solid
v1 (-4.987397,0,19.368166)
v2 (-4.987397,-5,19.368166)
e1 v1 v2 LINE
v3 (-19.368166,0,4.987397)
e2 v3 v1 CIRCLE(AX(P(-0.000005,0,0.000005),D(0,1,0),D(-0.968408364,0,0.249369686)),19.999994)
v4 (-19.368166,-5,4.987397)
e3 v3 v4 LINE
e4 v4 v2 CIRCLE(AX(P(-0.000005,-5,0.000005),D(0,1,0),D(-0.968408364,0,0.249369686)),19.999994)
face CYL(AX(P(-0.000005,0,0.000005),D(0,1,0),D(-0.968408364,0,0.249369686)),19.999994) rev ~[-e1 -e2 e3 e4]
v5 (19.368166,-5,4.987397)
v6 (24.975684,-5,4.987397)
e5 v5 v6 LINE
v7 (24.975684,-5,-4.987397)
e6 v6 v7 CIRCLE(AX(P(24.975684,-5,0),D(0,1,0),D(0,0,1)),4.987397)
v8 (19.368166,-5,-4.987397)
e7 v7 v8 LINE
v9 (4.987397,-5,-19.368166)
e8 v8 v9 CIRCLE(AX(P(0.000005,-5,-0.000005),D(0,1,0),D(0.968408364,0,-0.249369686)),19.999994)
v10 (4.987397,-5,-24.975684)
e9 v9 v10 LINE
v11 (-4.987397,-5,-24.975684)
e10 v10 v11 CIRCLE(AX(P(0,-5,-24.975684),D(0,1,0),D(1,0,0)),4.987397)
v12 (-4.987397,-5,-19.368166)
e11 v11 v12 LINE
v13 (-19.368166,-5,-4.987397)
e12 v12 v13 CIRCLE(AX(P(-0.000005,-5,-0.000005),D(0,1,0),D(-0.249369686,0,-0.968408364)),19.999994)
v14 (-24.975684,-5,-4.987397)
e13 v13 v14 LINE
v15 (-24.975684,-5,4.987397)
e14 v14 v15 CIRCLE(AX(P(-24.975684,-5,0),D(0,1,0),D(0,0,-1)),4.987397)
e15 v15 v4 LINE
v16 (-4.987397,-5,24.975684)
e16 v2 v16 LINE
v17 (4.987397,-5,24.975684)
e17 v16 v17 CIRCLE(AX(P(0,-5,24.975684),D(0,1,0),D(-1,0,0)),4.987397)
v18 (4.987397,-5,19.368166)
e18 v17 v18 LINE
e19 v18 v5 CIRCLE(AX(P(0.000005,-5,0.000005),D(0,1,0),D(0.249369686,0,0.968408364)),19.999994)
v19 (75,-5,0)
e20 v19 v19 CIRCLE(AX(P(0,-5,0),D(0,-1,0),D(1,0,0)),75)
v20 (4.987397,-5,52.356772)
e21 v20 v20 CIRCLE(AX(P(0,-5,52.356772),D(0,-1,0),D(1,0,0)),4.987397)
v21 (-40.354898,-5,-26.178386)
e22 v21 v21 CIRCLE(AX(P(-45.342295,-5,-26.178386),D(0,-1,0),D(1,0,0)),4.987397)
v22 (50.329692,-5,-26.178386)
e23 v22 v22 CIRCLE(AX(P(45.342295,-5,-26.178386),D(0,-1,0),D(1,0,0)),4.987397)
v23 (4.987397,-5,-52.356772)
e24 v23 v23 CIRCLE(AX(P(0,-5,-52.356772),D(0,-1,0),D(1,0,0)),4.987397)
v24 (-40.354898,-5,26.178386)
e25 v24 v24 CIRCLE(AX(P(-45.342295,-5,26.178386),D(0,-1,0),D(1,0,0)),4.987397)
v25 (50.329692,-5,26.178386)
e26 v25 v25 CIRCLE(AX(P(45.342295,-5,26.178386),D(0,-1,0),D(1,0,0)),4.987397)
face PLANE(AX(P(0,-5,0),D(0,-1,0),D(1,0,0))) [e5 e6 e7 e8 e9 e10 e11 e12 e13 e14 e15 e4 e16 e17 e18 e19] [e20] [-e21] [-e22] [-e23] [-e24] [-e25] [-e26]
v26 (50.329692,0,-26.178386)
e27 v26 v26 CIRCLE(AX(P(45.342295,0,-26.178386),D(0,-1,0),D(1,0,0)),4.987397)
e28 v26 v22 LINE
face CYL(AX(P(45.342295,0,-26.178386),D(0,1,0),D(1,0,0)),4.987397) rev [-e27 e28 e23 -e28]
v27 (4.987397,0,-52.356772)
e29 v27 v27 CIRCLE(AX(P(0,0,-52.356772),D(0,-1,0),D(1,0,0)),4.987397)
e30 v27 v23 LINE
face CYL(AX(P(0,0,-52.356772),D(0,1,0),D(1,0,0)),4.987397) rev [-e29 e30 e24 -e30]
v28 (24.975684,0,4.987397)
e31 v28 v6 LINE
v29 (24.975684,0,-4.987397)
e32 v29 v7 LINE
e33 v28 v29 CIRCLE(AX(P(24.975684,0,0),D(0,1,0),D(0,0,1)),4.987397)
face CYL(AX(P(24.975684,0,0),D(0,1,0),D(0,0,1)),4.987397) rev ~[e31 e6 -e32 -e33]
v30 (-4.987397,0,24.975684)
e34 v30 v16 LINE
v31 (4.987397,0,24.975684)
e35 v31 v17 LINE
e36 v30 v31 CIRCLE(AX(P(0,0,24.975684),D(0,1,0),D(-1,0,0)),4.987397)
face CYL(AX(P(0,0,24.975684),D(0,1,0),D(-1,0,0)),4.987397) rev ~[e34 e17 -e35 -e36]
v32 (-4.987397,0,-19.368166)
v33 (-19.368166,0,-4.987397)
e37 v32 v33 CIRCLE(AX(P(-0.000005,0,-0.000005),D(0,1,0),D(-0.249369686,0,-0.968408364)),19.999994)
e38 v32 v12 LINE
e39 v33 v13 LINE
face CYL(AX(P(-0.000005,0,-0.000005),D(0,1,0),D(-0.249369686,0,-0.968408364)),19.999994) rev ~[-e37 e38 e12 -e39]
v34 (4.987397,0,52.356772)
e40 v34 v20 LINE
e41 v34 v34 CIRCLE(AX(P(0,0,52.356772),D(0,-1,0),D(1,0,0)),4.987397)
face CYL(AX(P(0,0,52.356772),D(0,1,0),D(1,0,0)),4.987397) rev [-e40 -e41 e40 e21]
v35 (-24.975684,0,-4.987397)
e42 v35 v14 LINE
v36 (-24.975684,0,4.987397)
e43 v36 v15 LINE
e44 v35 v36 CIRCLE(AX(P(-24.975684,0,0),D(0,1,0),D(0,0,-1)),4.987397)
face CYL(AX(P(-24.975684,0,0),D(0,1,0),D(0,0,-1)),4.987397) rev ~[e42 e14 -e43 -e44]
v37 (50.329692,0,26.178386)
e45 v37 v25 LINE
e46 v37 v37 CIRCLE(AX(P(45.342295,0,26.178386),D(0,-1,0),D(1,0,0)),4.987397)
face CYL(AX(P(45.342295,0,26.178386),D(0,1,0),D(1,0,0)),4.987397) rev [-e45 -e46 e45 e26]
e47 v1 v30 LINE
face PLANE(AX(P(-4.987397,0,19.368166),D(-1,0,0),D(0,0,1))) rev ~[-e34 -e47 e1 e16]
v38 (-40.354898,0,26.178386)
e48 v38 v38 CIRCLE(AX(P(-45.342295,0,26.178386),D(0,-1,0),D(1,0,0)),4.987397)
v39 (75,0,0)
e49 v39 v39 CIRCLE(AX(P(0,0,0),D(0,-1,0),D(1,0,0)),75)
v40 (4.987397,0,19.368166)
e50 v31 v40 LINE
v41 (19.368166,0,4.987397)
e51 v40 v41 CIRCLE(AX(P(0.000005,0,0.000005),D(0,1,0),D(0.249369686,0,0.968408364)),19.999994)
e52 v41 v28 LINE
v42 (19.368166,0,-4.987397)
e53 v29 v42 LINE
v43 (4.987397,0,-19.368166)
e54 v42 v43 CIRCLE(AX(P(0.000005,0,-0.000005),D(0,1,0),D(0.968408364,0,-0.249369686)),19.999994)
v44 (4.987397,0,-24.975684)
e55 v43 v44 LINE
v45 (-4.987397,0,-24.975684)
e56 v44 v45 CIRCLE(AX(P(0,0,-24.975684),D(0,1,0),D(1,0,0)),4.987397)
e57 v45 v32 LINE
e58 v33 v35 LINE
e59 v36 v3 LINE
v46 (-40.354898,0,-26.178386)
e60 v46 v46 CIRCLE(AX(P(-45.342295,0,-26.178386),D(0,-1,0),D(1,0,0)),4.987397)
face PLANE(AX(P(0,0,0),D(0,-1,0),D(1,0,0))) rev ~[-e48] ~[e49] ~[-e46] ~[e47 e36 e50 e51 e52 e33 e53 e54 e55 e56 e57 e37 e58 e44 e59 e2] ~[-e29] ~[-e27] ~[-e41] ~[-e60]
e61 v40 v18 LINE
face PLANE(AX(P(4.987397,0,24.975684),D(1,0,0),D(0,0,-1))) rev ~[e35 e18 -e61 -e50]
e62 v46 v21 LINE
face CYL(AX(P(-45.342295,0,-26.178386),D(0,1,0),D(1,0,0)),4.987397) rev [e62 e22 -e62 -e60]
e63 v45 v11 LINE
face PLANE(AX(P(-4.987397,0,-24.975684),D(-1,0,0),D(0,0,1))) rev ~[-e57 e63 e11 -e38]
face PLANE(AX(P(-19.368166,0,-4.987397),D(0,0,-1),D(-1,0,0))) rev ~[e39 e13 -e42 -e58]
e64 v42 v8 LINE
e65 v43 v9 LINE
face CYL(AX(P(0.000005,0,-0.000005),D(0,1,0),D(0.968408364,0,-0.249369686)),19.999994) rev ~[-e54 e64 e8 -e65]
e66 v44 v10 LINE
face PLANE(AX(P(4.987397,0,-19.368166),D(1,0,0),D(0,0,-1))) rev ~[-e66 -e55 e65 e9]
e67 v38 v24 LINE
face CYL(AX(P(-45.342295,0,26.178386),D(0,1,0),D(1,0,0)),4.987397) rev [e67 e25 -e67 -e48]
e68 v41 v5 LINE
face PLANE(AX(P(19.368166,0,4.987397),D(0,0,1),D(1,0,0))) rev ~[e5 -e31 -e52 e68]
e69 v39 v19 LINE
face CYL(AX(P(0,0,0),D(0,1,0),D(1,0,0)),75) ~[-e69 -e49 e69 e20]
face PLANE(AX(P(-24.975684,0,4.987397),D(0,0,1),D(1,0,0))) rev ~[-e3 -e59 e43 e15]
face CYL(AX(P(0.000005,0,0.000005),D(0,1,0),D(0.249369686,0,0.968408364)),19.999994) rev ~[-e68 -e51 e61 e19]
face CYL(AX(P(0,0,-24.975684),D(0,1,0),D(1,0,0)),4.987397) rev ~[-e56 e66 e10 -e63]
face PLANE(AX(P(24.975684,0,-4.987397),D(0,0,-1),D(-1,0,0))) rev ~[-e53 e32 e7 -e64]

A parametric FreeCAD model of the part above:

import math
import FreeCAD as App
import Part
import Sketcher
Q = App.Units.Quantity

doc = App.newDocument("Part")
body = doc.addObject("PartDesign::Body", "Body")

sketch1 = body.newObject("Sketcher::SketchObject", "Sketch")
sketch1.AttachmentSupport = (doc.getObject("XZ_Plane"), [""])
sketch1.MapMode = "FlatFace"
sketch1.addGeometry(Part.Circle(App.Vector(0, 0, 0), App.Vector(0, 0, 1), 75), False)
sketch1.addGeometry(Part.Circle(App.Vector(-45.3, -26.2, 0), App.Vector(0, 0, 1), 5), False)
sketch1.addGeometry(Part.Circle(App.Vector(0, -52.4, 0), App.Vector(0, 0, 1), 5), False)
sketch1.addGeometry(Part.Circle(App.Vector(45.3, -26.2, 0), App.Vector(0, 0, 1), 5), False)
sketch1.addGeometry(Part.Circle(App.Vector(-45.3, 26.2, 0), App.Vector(0, 0, 1), 5), False)
sketch1.addGeometry(Part.LineSegment(App.Vector(-25, 5, 0), App.Vector(-19.4, 5, 0)), False)
sketch1.addGeometry(Part.ArcOfCircle(Part.Circle(App.Vector(0, 0, 0), App.Vector(0, 0, 1), 20), math.radians(104), math.radians(166)), False)
sketch1.addGeometry(Part.LineSegment(App.Vector(-5, 19.4, 0), App.Vector(-5, 25, 0)), False)
sketch1.addGeometry(Part.ArcOfCircle(Part.Circle(App.Vector(0, 25, 0), App.Vector(0, 0, 1), 5), math.radians(0), math.radians(180)), False)
sketch1.addGeometry(Part.LineSegment(App.Vector(5, 25, 0), App.Vector(5, 19.4, 0)), False)
sketch1.addGeometry(Part.ArcOfCircle(Part.Circle(App.Vector(0, 0, 0), App.Vector(0, 0, 1), 20), math.radians(14), math.radians(76)), False)
sketch1.addGeometry(Part.LineSegment(App.Vector(19.4, 5, 0), App.Vector(25, 5, 0)), False)
sketch1.addGeometry(Part.ArcOfCircle(Part.Circle(App.Vector(25, 0, 0), App.Vector(0, 0, 1), 5), math.radians(-90), math.radians(90)), False)
sketch1.addGeometry(Part.LineSegment(App.Vector(25, -5, 0), App.Vector(19.4, -5, 0)), False)
sketch1.addGeometry(Part.ArcOfCircle(Part.Circle(App.Vector(0, 0, 0), App.Vector(0, 0, 1), 20), math.radians(-76), math.radians(-14)), False)
sketch1.addGeometry(Part.LineSegment(App.Vector(5, -19.4, 0), App.Vector(5, -25, 0)), False)
sketch1.addGeometry(Part.ArcOfCircle(Part.Circle(App.Vector(0, -25, 0), App.Vector(0, 0, 1), 5), math.radians(180), math.radians(360)), False)
sketch1.addGeometry(Part.LineSegment(App.Vector(-5, -25, 0), App.Vector(-5, -19.4, 0)), False)
sketch1.addGeometry(Part.ArcOfCircle(Part.Circle(App.Vector(0, 0, 0), App.Vector(0, 0, 1), 20), math.radians(-166), math.radians(-104)), False)
sketch1.addGeometry(Part.LineSegment(App.Vector(-19.4, -5, 0), App.Vector(-25, -5, 0)), False)
sketch1.addGeometry(Part.ArcOfCircle(Part.Circle(App.Vector(-25, 0, 0), App.Vector(0, 0, 1), 5), math.radians(90), math.radians(270)), False)
sketch1.addGeometry(Part.Circle(App.Vector(45.3, 26.2, 0), App.Vector(0, 0, 1), 5), False)
sketch1.addGeometry(Part.Circle(App.Vector(0, 52.4, 0), App.Vector(0, 0, 1), 5), False)
sketch1.addConstraint(Sketcher.Constraint("Coincident", 5, 2, 6, 2))
sketch1.addConstraint(Sketcher.Constraint("Coincident", 6, 1, 7, 1))
sketch1.addConstraint(Sketcher.Constraint("Tangent", 7, 2, 8, 2))
sketch1.addConstraint(Sketcher.Constraint("Tangent", 8, 1, 9, 1))
sketch1.addConstraint(Sketcher.Constraint("Coincident", 9, 2, 10, 2))
sketch1.addConstraint(Sketcher.Constraint("Coincident", 10, 1, 11, 1))
sketch1.addConstraint(Sketcher.Constraint("Tangent", 11, 2, 12, 2))
sketch1.addConstraint(Sketcher.Constraint("Tangent", 12, 1, 13, 1))
sketch1.addConstraint(Sketcher.Constraint("Coincident", 13, 2, 14, 2))
sketch1.addConstraint(Sketcher.Constraint("Coincident", 14, 1, 15, 1))
sketch1.addConstraint(Sketcher.Constraint("Tangent", 15, 2, 16, 2))
sketch1.addConstraint(Sketcher.Constraint("Tangent", 16, 1, 17, 1))
sketch1.addConstraint(Sketcher.Constraint("Coincident", 17, 2, 18, 2))
sketch1.addConstraint(Sketcher.Constraint("Coincident", 18, 1, 19, 1))
sketch1.addConstraint(Sketcher.Constraint("Tangent", 19, 2, 20, 2))
sketch1.addConstraint(Sketcher.Constraint("Tangent", 20, 1, 5, 1))
sketch1.addConstraint(Sketcher.Constraint("Horizontal", 5))
sketch1.addConstraint(Sketcher.Constraint("Vertical", 7))
sketch1.addConstraint(Sketcher.Constraint("Vertical", 9))
sketch1.addConstraint(Sketcher.Constraint("Horizontal", 11))
sketch1.addConstraint(Sketcher.Constraint("Horizontal", 13))
sketch1.addConstraint(Sketcher.Constraint("Vertical", 15))
sketch1.addConstraint(Sketcher.Constraint("Vertical", 17))
sketch1.addConstraint(Sketcher.Constraint("Horizontal", 19))
sketch1.addConstraint(Sketcher.Constraint("Coincident", 0, 3, -1, 1))
sketch1.addConstraint(Sketcher.Constraint("Coincident", 6, 3, -1, 1))
sketch1.addConstraint(Sketcher.Constraint("Coincident", 10, 3, -1, 1))
sketch1.addConstraint(Sketcher.Constraint("Coincident", 14, 3, -1, 1))
sketch1.addConstraint(Sketcher.Constraint("Coincident", 18, 3, -1, 1))
sketch1.addConstraint(Sketcher.Constraint("Equal", 1, 2))
sketch1.addConstraint(Sketcher.Constraint("Equal", 2, 3))
sketch1.addConstraint(Sketcher.Constraint("Equal", 3, 4))
sketch1.addConstraint(Sketcher.Constraint("Equal", 4, 8))
sketch1.addConstraint(Sketcher.Constraint("Equal", 6, 10))
sketch1.addConstraint(Sketcher.Constraint("Equal", 8, 12))
sketch1.addConstraint(Sketcher.Constraint("Equal", 10, 14))
sketch1.addConstraint(Sketcher.Constraint("Equal", 12, 16))
sketch1.addConstraint(Sketcher.Constraint("Equal", 14, 18))
sketch1.addConstraint(Sketcher.Constraint("Equal", 16, 20))
sketch1.addConstraint(Sketcher.Constraint("Equal", 20, 21))
sketch1.addConstraint(Sketcher.Constraint("Equal", 21, 22))
sketch1.addConstraint(Sketcher.Constraint("Symmetric", 3, 3, 4, 3, -1, 1))
sketch1.addConstraint(Sketcher.Constraint("Symmetric", 8, 3, 16, 3, -1, 1))
sketch1.addConstraint(Sketcher.Constraint("Symmetric", 12, 3, 20, 3, -1, 1))
sketch1.addConstraint(Sketcher.Constraint("Symmetric", 1, 3, 21, 3, -1, 1))
sketch1.addConstraint(Sketcher.Constraint("Symmetric", 2, 3, 22, 3, -1, 1))
sketch1.addConstraint(Sketcher.Constraint("Symmetric", 1, 3, 3, 3, -2))
sketch1.addConstraint(Sketcher.Constraint("PointOnObject", 2, 3, -2))
sketch1.addConstraint(Sketcher.Constraint("PointOnObject", 8, 3, -2))
sketch1.addConstraint(Sketcher.Constraint("PointOnObject", 12, 3, -1))
sketch1.addConstraint(Sketcher.Constraint("Equal", 19, 7))
sketch1.addConstraint(Sketcher.Constraint("Diameter", 0, Q("150 mm")))
sketch1.addConstraint(Sketcher.Constraint("Diameter", 1, Q("9.974794 mm")))
sketch1.addConstraint(Sketcher.Constraint("Radius", 6, Q("19.999994 mm")))
sketch1.addConstraint(Sketcher.Constraint("DistanceX", 5, 1, 5, 2, Q("5.607518 mm")))
sketch1.addConstraint(Sketcher.Constraint("DistanceX", 6, 3, 3, 3, Q("45.3423 mm")))
sketch1.addConstraint(Sketcher.Constraint("DistanceY", 8, 3, 4, 3, Q("1.202702 mm")))
sketch1.addConstraint(Sketcher.Constraint("DistanceY", 2, 3, -1, 1, Q("52.356772 mm")))
pad1 = body.newObject("PartDesign::Pad", "Pad")
pad1.Profile = sketch1
pad1.Length = 5

doc.recompute()
